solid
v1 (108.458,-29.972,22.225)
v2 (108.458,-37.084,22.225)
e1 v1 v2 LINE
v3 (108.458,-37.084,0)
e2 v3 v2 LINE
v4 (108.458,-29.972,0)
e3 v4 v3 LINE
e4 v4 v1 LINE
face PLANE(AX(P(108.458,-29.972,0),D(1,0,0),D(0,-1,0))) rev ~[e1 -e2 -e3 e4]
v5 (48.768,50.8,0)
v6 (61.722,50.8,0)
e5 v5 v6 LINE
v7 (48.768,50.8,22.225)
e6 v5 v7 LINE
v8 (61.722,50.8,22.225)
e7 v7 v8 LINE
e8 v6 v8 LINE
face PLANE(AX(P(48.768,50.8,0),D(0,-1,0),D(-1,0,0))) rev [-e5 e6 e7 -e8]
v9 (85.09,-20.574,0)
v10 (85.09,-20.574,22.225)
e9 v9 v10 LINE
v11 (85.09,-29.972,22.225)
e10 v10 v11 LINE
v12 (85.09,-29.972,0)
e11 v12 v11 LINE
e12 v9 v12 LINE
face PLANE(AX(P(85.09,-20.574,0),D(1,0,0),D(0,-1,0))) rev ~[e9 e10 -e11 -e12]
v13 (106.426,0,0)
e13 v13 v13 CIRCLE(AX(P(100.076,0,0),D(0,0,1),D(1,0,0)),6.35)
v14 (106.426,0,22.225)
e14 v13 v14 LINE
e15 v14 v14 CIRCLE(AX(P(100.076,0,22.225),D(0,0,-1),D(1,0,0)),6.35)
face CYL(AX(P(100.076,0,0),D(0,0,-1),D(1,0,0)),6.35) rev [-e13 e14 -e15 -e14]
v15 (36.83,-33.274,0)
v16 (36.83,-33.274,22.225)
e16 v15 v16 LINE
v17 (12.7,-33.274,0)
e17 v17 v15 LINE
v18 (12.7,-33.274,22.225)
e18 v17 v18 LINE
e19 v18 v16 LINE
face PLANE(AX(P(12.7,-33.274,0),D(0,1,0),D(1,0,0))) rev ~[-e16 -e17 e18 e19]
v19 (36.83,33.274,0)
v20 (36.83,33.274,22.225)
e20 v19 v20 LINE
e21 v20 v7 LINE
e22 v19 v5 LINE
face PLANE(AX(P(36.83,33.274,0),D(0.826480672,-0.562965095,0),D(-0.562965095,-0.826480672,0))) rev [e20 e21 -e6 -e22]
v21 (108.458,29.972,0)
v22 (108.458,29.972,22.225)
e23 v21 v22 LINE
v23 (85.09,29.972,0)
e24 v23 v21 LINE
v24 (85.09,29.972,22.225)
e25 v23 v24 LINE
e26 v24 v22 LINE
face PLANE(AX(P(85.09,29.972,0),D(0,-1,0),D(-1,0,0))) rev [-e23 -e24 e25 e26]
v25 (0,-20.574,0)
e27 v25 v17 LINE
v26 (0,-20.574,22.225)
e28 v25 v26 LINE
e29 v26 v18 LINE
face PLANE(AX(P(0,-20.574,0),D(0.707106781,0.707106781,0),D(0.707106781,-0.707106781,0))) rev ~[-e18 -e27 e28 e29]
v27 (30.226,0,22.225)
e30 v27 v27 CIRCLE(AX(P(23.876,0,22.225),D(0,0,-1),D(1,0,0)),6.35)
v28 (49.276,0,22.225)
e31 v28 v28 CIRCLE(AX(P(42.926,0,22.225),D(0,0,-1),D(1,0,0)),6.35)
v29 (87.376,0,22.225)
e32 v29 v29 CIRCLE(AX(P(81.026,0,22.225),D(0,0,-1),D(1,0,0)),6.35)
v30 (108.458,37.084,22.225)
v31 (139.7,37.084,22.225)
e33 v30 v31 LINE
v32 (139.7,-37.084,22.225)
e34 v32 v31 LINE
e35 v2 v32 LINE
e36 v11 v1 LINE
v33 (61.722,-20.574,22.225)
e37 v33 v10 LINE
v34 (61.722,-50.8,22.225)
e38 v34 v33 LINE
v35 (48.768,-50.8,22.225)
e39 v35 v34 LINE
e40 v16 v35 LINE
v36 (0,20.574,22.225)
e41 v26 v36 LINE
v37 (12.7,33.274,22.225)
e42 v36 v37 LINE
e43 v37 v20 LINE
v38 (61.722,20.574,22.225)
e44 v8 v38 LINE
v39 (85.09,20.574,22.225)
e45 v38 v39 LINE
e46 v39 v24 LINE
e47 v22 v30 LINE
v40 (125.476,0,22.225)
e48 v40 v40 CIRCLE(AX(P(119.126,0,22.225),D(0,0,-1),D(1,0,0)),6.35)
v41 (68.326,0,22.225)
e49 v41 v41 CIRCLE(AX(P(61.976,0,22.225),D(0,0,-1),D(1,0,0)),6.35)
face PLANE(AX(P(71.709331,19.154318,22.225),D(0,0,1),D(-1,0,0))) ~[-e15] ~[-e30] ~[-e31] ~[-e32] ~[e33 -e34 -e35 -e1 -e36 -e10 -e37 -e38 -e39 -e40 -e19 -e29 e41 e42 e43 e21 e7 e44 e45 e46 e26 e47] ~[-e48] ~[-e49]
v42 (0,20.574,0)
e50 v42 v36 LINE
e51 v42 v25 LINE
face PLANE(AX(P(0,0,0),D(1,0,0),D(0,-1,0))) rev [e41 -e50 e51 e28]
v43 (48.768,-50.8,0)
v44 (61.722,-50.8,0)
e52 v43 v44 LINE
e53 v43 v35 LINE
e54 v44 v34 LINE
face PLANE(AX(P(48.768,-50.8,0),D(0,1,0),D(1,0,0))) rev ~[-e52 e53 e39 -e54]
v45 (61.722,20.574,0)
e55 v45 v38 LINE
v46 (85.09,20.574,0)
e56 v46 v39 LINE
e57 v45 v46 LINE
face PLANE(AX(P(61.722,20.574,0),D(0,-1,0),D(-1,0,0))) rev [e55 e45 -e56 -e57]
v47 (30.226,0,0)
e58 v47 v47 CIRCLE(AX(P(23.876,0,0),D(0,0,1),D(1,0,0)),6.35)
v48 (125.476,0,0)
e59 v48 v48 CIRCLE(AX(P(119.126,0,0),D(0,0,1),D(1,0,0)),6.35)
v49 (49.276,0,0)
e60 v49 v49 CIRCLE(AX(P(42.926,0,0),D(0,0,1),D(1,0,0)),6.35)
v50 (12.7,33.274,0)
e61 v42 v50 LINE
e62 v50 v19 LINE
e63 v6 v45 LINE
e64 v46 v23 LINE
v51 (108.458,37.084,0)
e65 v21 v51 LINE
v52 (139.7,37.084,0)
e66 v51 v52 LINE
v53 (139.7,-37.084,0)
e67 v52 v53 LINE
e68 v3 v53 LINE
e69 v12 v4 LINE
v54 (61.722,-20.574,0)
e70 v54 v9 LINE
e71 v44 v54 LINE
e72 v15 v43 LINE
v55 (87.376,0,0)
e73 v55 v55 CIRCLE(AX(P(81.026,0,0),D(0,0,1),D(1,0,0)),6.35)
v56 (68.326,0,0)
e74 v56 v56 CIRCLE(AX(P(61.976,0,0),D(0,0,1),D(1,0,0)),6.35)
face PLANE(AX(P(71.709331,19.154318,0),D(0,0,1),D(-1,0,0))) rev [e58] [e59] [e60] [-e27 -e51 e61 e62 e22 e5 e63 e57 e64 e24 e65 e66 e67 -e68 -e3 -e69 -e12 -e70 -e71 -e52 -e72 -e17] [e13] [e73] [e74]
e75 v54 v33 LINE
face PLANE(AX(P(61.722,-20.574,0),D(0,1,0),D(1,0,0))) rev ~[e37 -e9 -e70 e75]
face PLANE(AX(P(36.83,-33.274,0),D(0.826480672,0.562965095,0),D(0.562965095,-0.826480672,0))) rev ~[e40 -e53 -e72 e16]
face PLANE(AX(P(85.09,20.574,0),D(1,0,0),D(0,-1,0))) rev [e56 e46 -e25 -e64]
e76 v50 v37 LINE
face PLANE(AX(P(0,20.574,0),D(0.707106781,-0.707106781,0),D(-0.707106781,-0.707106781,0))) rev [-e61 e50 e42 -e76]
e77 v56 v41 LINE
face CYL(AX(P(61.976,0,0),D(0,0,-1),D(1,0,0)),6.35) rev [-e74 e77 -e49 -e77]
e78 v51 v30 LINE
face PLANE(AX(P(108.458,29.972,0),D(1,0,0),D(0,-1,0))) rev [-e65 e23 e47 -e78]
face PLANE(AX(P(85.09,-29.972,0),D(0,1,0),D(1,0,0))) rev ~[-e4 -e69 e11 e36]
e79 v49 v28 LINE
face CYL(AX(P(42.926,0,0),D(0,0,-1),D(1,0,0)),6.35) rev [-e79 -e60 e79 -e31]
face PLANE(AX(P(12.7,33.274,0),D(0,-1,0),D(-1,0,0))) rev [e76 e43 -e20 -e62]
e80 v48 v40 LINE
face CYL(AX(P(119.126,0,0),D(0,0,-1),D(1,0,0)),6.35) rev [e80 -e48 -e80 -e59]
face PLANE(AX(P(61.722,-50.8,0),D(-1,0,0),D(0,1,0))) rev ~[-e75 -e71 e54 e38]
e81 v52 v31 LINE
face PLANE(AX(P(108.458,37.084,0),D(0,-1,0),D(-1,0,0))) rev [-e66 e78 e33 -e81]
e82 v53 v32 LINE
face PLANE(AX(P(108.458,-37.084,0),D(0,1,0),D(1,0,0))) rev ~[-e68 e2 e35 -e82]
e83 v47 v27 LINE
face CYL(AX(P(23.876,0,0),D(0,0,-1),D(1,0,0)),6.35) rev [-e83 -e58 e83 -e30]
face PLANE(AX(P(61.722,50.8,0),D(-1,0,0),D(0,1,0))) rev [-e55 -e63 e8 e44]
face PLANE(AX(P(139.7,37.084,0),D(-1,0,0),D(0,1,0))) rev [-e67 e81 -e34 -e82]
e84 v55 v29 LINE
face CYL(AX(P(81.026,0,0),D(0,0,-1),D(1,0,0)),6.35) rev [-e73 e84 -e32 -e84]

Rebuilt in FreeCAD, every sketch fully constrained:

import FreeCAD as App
import Part
import Sketcher
from FreeCAD import Vector
Q = App.Units.Quantity


def add_polygon(sketch, points):
    """Adds a closed chain of lines whose ends are joined by coincident constraints."""
    first, n = sketch.GeometryCount, len(points)
    for a, b in zip(points, points[1:] + points[:1]):
        sketch.addGeometry(Part.LineSegment(App.Vector(*a, 0), App.Vector(*b, 0)), False)
    for i in range(n):
        sketch.addConstraint(Sketcher.Constraint("Coincident", first + i, 2, first + (i + 1) % n, 1))

doc = App.newDocument("Part")
body = doc.addObject("PartDesign::Body", "Body")

sketch1 = body.newObject("Sketcher::SketchObject", "Sketch")
sketch1.AttachmentSupport = (doc.getObject("XY_Plane"), [""])
sketch1.MapMode = "FlatFace"
add_polygon(sketch1, [(139.7, 0), (0, 0), (0, -20.574), (12.7, -33.274), (36.83, -33.274), (48.768, -50.8), (61.722, -50.8), (61.722, -20.574), (85.09, -20.574), (85.09, -29.972), (108.458, -29.972), (108.458, -37.084), (139.7, -37.084)])
sketch1.addConstraint(Sketcher.Constraint("Horizontal", 0))
sketch1.addConstraint(Sketcher.Constraint("Vertical", 1))
sketch1.addConstraint(Sketcher.Constraint("Horizontal", 3))
sketch1.addConstraint(Sketcher.Constraint("Horizontal", 5))
sketch1.addConstraint(Sketcher.Constraint("Vertical", 6))
sketch1.addConstraint(Sketcher.Constraint("Horizontal", 7))
sketch1.addConstraint(Sketcher.Constraint("Vertical", 8))
sketch1.addConstraint(Sketcher.Constraint("Horizontal", 9))
sketch1.addConstraint(Sketcher.Constraint("Vertical", 10))
sketch1.addConstraint(Sketcher.Constraint("Horizontal", 11))
sketch1.addConstraint(Sketcher.Constraint("Vertical", 12))
sketch1.addConstraint(Sketcher.Constraint("Coincident", 0, 2, -1, 1))
sketch1.addConstraint(Sketcher.Constraint("Horizontal", 1, 2, 6, 2))
sketch1.addConstraint(Sketcher.Constraint("Equal", 7, 9))
sketch1.addConstraint(Sketcher.Constraint("DistanceX", 0, 2, 0, 1, Q("5.5 in")))
sketch1.addConstraint(Sketcher.Constraint("DistanceY", 4, 2, -1, 1, Q("2 in")))
sketch1.addConstraint(Sketcher.Constraint("Angle", 2, Q("-45 deg")))
sketch1.addConstraint(Sketcher.Constraint("DistanceX", 3, 1, 3, 2, Q("0.95 in")))
sketch1.addConstraint(Sketcher.Constraint("DistanceX", 5, 1, 5, 2, Q("0.51 in")))
sketch1.addConstraint(Sketcher.Constraint("DistanceX", 7, 1, 7, 2, Q("0.92 in")))
sketch1.addConstraint(Sketcher.Constraint("DistanceX", 11, 1, 11, 2, Q("1.23 in")))
sketch1.addConstraint(Sketcher.Constraint("DistanceY", 1, 2, 1, 1, Q("0.81 in")))
sketch1.addConstraint(Sketcher.Constraint("DistanceY", 8, 2, 8, 1, Q("0.37 in")))
sketch1.addConstraint(Sketcher.Constraint("DistanceY", 10, 2, 10, 1, Q("0.28 in")))
sketch1.addConstraint(Sketcher.Constraint("DistanceX", -1, 1, 2, 2, Q("0.5 in")))
pad1 = body.newObject("PartDesign::Pad", "Pad")
pad1.Profile = sketch1
pad1.Length = Q("0.875 in")
body2 = doc.addObject("PartDesign::Body", "Body001")
doc.recompute()

body2.BaseFeature = body
doc.recompute()

mirroring = doc.addObject("Part::Mirroring", "Mirroring")
mirroring.Source = body
mirroring.Base = Vector(69.85, 0, 11.1125)
mirroring.Normal = Vector(0, 1, 0)
body3 = doc.addObject("PartDesign::Body", "Body002")
body3.BaseFeature = mirroring
boolean = body2.newObject("PartDesign::Boolean", "Boolean")
boolean.Type = "Fuse"
boolean.addObjects([body3])
doc.recompute()

sketch2 = body2.newObject("Sketcher::SketchObject", "Sketch001")
sketch2.AttachmentSupport = (doc.getObject("XY_Plane001"), [""])
sketch2.MapMode = "FlatFace"
sketch2.addGeometry(Part.Circle(Vector(23.876, 0, 0), Vector(0, 0, 1), 6.35), False)
sketch2.addGeometry(Part.Circle(Vector(42.926, 0, 0), Vector(0, 0, 1), 6.35), False)
sketch2.addGeometry(Part.Circle(Vector(61.976, 0, 0), Vector(0, 0, 1), 6.35), False)
sketch2.addGeometry(Part.Circle(Vector(81.026, 0, 0), Vector(0, 0, 1), 6.35), False)
sketch2.addGeometry(Part.Circle(Vector(100.076, 0, 0), Vector(0, 0, 1), 6.35), False)
sketch2.addGeometry(Part.Circle(Vector(119.126, 0, 0), Vector(0, 0, 1), 6.35), False)
sketch2.addConstraint(Sketcher.Constraint("Equal", 0, 1))
sketch2.addConstraint(Sketcher.Constraint("Equal", 1, 2))
sketch2.addConstraint(Sketcher.Constraint("Equal", 2, 3))
sketch2.addConstraint(Sketcher.Constraint("Equal", 3, 4))
sketch2.addConstraint(Sketcher.Constraint("Equal", 4, 5))
sketch2.addConstraint(Sketcher.Constraint("PointOnObject", 0, 3, -1))
sketch2.addConstraint(Sketcher.Constraint("PointOnObject", 1, 3, -1))
sketch2.addConstraint(Sketcher.Constraint("PointOnObject", 2, 3, -1))
sketch2.addConstraint(Sketcher.Constraint("PointOnObject", 3, 3, -1))
sketch2.addConstraint(Sketcher.Constraint("PointOnObject", 4, 3, -1))
sketch2.addConstraint(Sketcher.Constraint("PointOnObject", 5, 3, -1))
sketch2.addConstraint(Sketcher.Constraint("Diameter", 0, Q("0.5 in")))
sketch2.addConstraint(Sketcher.Constraint("DistanceX", 0, 3, 4, 3, Q("3 in")))
sketch2.addConstraint(Sketcher.Constraint("DistanceX", 1, 3, 5, 3, Q("3 in")))
sketch2.addConstraint(Sketcher.Constraint("DistanceX", 0, 3, 2, 3, Q("1.5 in")))
sketch2.addConstraint(Sketcher.Constraint("DistanceX", 1, 3, 3, 3, Q("1.5 in")))
sketch2.addConstraint(Sketcher.Constraint("DistanceX", -1, 1, 0, 3, Q("0.94 in")))
sketch2.addConstraint(Sketcher.Constraint("DistanceX", -1, 1, 1, 3, Q("1.69 in")))
pocket1 = body2.newObject("PartDesign::Pocket", "Pocket")
pocket1.Profile = sketch2
pocket1.Type = "ThroughAll"
pocket1.Reversed = True
mirroring.Visibility = False

doc.recompute()
